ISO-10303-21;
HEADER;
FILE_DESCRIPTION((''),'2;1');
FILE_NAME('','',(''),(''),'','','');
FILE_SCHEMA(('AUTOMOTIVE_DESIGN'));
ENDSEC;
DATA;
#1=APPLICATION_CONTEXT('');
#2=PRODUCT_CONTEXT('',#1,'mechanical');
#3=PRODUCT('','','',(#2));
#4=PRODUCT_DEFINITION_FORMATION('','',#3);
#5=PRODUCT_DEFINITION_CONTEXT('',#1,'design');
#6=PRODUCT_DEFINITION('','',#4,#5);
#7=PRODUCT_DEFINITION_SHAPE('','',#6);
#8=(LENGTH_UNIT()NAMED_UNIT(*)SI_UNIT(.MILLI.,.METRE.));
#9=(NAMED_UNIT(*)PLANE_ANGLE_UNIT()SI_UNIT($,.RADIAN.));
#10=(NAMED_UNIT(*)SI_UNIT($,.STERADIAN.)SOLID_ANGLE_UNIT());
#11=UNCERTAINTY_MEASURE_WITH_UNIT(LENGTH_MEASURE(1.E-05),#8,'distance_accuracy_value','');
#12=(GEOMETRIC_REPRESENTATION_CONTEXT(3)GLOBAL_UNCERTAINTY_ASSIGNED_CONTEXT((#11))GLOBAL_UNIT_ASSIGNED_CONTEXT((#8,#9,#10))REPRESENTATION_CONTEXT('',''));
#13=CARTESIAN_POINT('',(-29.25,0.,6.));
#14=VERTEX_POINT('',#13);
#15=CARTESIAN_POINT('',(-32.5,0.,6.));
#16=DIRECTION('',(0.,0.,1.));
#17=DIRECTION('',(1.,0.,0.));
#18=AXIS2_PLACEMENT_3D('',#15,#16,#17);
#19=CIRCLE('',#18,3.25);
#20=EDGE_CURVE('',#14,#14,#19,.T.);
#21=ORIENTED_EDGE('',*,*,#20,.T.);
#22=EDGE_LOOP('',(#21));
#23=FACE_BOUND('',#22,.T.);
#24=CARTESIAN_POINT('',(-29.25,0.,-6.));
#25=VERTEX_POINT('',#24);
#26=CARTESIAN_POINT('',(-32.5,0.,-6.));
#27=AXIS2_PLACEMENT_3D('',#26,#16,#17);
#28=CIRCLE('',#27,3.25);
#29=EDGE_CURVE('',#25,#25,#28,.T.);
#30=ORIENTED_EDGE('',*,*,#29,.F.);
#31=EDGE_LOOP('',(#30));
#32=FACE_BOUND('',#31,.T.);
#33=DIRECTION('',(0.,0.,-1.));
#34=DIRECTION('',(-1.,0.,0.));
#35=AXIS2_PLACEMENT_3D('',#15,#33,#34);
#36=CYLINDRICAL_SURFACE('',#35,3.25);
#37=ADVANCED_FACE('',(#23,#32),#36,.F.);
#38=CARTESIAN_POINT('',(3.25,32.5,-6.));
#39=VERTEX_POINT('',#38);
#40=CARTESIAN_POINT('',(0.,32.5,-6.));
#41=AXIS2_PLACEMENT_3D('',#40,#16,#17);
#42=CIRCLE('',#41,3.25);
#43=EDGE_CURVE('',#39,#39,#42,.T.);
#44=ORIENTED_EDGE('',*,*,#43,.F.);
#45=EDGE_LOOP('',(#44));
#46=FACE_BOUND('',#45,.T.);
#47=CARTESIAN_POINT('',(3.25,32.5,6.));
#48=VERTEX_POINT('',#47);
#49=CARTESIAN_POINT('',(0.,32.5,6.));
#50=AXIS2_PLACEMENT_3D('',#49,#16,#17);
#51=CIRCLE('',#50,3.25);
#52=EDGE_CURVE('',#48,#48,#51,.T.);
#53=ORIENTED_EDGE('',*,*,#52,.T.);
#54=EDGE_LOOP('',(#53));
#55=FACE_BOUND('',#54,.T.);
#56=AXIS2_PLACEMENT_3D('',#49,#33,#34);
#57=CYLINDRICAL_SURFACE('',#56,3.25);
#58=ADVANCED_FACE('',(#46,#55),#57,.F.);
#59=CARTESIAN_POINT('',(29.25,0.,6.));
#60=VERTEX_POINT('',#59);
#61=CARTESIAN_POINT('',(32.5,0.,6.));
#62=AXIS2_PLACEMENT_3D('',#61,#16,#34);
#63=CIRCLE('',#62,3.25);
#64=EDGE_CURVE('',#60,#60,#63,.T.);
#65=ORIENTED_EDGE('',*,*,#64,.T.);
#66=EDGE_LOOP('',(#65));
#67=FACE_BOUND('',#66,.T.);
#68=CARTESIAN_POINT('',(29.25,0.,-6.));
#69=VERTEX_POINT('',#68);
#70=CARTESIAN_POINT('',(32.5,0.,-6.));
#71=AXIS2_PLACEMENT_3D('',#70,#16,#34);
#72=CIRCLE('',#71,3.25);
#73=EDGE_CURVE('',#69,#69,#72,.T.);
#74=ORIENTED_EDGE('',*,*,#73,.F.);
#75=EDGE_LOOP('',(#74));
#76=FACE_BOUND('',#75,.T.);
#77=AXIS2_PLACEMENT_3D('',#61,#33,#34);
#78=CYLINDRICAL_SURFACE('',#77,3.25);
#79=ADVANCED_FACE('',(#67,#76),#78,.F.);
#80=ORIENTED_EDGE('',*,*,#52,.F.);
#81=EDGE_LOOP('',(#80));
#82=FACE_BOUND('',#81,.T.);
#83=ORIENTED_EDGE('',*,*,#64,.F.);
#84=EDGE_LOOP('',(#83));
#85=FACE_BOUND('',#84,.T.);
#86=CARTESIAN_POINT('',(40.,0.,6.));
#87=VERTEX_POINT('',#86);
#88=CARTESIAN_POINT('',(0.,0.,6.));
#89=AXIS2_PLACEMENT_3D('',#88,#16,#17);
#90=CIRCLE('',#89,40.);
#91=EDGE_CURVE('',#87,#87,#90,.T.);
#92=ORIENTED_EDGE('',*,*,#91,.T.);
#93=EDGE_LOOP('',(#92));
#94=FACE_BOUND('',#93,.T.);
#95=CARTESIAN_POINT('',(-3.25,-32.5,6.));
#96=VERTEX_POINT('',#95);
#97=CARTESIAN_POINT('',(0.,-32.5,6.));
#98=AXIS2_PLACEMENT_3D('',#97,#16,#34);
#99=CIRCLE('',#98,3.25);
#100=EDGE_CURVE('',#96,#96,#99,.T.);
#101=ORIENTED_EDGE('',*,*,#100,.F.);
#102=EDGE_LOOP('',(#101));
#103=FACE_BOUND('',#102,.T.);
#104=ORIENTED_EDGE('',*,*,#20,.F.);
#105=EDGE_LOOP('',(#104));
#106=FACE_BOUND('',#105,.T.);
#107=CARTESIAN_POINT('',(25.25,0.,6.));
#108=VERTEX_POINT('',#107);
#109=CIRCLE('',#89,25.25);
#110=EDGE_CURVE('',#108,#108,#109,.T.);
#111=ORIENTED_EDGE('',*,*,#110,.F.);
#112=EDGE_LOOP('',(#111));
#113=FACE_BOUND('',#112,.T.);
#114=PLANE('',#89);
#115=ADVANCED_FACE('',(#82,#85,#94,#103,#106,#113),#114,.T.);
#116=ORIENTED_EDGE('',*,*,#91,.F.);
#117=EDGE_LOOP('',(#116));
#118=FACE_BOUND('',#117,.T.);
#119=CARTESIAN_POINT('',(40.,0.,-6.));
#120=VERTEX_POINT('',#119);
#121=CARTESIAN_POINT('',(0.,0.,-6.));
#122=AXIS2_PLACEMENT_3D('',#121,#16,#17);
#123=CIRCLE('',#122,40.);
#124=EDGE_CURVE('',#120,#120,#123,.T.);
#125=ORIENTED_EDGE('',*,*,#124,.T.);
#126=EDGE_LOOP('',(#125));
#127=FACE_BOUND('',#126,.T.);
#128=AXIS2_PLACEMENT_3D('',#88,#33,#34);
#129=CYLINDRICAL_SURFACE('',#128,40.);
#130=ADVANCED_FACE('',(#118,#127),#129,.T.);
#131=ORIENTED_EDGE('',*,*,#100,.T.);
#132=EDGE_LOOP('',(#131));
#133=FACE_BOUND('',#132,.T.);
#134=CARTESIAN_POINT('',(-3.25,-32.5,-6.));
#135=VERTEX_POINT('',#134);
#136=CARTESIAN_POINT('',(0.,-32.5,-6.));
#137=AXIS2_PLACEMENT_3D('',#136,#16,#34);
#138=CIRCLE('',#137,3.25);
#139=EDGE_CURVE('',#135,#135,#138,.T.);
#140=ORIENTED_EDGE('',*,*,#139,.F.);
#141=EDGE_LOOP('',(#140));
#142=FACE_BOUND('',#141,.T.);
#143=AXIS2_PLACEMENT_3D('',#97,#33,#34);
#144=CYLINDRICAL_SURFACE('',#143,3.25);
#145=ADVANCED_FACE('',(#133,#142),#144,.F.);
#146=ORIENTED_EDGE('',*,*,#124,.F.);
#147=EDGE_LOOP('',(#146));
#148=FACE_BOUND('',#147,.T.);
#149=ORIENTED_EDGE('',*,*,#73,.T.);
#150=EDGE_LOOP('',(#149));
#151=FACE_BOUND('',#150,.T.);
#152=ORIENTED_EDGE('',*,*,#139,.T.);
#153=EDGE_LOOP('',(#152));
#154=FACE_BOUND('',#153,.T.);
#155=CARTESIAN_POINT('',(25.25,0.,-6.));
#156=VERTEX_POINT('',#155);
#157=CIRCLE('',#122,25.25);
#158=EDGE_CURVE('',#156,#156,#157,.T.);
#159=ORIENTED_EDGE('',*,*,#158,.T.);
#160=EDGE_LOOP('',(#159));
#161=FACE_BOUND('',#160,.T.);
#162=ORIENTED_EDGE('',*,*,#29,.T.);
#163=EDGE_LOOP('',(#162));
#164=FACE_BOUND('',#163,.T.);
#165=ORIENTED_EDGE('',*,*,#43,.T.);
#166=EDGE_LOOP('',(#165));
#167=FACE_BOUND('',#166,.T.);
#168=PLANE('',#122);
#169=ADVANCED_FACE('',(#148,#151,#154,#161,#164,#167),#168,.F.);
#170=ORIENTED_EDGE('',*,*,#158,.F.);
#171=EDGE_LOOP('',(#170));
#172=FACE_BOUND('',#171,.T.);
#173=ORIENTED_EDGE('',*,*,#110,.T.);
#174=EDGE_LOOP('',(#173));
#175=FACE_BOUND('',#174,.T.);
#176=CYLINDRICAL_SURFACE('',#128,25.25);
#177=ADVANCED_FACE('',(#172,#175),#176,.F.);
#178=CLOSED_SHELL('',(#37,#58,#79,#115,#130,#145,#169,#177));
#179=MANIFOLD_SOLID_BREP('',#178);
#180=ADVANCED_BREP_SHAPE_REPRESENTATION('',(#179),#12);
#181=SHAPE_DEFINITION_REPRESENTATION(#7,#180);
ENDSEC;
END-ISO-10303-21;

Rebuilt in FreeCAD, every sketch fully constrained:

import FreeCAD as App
import Part
import Sketcher
from FreeCAD import Vector

doc = App.newDocument("Part")
body = doc.addObject("PartDesign::Body", "Body")

sketch1 = body.newObject("Sketcher::SketchObject", "Sketch")
sketch1.AttachmentSupport = (doc.getObject("XY_Plane"), [""])
sketch1.MapMode = "FlatFace"
sketch1.addGeometry([
    Part.Circle(Vector(0, 0, 0), Vector(0, 0, 1), 40),
    Part.Circle(Vector(0, -32.5, 0), Vector(0, 0, 1), 3.2),
    Part.Circle(Vector(-32.5, 0, 0), Vector(0, 0, 1), 3.2),
    Part.Circle(Vector(0, 0, 0), Vector(0, 0, 1), 25.2),
    Part.Circle(Vector(32.5, 0, 0), Vector(0, 0, 1), 3.2),
    Part.Circle(Vector(0, 32.5, 0), Vector(0, 0, 1), 3.2),
], False)
sketch1.addConstraint([
    Sketcher.Constraint("Coincident", 0, 3, -1, 1),
    Sketcher.Constraint("Coincident", 3, 3, -1, 1),
    Sketcher.Constraint("Equal", 1, 2),
    Sketcher.Constraint("Equal", 2, 4),
    Sketcher.Constraint("Equal", 4, 5),
    Sketcher.Constraint("Symmetric", 2, 3, 4, 3, -1, 1),
    Sketcher.Constraint("Symmetric", 1, 3, 5, 3, -1, 1),
    Sketcher.Constraint("PointOnObject", 1, 3, -2),
    Sketcher.Constraint("PointOnObject", 2, 3, -1),
    Sketcher.Constraint("Diameter", 0, 80.0),
    Sketcher.Constraint("Diameter", 1, 6.5),
    Sketcher.Constraint("Diameter", 3, 50.5),
    Sketcher.Constraint("DistanceX", 2, 3, 4, 3, 65.0),
    Sketcher.Constraint("DistanceY", 1, 3, 5, 3, 65.0),
])
pad1 = body.newObject("PartDesign::Pad", "Pad")
pad1.Profile = sketch1
pad1.Length = 12
pad1.Midplane = True

doc.recompute()
